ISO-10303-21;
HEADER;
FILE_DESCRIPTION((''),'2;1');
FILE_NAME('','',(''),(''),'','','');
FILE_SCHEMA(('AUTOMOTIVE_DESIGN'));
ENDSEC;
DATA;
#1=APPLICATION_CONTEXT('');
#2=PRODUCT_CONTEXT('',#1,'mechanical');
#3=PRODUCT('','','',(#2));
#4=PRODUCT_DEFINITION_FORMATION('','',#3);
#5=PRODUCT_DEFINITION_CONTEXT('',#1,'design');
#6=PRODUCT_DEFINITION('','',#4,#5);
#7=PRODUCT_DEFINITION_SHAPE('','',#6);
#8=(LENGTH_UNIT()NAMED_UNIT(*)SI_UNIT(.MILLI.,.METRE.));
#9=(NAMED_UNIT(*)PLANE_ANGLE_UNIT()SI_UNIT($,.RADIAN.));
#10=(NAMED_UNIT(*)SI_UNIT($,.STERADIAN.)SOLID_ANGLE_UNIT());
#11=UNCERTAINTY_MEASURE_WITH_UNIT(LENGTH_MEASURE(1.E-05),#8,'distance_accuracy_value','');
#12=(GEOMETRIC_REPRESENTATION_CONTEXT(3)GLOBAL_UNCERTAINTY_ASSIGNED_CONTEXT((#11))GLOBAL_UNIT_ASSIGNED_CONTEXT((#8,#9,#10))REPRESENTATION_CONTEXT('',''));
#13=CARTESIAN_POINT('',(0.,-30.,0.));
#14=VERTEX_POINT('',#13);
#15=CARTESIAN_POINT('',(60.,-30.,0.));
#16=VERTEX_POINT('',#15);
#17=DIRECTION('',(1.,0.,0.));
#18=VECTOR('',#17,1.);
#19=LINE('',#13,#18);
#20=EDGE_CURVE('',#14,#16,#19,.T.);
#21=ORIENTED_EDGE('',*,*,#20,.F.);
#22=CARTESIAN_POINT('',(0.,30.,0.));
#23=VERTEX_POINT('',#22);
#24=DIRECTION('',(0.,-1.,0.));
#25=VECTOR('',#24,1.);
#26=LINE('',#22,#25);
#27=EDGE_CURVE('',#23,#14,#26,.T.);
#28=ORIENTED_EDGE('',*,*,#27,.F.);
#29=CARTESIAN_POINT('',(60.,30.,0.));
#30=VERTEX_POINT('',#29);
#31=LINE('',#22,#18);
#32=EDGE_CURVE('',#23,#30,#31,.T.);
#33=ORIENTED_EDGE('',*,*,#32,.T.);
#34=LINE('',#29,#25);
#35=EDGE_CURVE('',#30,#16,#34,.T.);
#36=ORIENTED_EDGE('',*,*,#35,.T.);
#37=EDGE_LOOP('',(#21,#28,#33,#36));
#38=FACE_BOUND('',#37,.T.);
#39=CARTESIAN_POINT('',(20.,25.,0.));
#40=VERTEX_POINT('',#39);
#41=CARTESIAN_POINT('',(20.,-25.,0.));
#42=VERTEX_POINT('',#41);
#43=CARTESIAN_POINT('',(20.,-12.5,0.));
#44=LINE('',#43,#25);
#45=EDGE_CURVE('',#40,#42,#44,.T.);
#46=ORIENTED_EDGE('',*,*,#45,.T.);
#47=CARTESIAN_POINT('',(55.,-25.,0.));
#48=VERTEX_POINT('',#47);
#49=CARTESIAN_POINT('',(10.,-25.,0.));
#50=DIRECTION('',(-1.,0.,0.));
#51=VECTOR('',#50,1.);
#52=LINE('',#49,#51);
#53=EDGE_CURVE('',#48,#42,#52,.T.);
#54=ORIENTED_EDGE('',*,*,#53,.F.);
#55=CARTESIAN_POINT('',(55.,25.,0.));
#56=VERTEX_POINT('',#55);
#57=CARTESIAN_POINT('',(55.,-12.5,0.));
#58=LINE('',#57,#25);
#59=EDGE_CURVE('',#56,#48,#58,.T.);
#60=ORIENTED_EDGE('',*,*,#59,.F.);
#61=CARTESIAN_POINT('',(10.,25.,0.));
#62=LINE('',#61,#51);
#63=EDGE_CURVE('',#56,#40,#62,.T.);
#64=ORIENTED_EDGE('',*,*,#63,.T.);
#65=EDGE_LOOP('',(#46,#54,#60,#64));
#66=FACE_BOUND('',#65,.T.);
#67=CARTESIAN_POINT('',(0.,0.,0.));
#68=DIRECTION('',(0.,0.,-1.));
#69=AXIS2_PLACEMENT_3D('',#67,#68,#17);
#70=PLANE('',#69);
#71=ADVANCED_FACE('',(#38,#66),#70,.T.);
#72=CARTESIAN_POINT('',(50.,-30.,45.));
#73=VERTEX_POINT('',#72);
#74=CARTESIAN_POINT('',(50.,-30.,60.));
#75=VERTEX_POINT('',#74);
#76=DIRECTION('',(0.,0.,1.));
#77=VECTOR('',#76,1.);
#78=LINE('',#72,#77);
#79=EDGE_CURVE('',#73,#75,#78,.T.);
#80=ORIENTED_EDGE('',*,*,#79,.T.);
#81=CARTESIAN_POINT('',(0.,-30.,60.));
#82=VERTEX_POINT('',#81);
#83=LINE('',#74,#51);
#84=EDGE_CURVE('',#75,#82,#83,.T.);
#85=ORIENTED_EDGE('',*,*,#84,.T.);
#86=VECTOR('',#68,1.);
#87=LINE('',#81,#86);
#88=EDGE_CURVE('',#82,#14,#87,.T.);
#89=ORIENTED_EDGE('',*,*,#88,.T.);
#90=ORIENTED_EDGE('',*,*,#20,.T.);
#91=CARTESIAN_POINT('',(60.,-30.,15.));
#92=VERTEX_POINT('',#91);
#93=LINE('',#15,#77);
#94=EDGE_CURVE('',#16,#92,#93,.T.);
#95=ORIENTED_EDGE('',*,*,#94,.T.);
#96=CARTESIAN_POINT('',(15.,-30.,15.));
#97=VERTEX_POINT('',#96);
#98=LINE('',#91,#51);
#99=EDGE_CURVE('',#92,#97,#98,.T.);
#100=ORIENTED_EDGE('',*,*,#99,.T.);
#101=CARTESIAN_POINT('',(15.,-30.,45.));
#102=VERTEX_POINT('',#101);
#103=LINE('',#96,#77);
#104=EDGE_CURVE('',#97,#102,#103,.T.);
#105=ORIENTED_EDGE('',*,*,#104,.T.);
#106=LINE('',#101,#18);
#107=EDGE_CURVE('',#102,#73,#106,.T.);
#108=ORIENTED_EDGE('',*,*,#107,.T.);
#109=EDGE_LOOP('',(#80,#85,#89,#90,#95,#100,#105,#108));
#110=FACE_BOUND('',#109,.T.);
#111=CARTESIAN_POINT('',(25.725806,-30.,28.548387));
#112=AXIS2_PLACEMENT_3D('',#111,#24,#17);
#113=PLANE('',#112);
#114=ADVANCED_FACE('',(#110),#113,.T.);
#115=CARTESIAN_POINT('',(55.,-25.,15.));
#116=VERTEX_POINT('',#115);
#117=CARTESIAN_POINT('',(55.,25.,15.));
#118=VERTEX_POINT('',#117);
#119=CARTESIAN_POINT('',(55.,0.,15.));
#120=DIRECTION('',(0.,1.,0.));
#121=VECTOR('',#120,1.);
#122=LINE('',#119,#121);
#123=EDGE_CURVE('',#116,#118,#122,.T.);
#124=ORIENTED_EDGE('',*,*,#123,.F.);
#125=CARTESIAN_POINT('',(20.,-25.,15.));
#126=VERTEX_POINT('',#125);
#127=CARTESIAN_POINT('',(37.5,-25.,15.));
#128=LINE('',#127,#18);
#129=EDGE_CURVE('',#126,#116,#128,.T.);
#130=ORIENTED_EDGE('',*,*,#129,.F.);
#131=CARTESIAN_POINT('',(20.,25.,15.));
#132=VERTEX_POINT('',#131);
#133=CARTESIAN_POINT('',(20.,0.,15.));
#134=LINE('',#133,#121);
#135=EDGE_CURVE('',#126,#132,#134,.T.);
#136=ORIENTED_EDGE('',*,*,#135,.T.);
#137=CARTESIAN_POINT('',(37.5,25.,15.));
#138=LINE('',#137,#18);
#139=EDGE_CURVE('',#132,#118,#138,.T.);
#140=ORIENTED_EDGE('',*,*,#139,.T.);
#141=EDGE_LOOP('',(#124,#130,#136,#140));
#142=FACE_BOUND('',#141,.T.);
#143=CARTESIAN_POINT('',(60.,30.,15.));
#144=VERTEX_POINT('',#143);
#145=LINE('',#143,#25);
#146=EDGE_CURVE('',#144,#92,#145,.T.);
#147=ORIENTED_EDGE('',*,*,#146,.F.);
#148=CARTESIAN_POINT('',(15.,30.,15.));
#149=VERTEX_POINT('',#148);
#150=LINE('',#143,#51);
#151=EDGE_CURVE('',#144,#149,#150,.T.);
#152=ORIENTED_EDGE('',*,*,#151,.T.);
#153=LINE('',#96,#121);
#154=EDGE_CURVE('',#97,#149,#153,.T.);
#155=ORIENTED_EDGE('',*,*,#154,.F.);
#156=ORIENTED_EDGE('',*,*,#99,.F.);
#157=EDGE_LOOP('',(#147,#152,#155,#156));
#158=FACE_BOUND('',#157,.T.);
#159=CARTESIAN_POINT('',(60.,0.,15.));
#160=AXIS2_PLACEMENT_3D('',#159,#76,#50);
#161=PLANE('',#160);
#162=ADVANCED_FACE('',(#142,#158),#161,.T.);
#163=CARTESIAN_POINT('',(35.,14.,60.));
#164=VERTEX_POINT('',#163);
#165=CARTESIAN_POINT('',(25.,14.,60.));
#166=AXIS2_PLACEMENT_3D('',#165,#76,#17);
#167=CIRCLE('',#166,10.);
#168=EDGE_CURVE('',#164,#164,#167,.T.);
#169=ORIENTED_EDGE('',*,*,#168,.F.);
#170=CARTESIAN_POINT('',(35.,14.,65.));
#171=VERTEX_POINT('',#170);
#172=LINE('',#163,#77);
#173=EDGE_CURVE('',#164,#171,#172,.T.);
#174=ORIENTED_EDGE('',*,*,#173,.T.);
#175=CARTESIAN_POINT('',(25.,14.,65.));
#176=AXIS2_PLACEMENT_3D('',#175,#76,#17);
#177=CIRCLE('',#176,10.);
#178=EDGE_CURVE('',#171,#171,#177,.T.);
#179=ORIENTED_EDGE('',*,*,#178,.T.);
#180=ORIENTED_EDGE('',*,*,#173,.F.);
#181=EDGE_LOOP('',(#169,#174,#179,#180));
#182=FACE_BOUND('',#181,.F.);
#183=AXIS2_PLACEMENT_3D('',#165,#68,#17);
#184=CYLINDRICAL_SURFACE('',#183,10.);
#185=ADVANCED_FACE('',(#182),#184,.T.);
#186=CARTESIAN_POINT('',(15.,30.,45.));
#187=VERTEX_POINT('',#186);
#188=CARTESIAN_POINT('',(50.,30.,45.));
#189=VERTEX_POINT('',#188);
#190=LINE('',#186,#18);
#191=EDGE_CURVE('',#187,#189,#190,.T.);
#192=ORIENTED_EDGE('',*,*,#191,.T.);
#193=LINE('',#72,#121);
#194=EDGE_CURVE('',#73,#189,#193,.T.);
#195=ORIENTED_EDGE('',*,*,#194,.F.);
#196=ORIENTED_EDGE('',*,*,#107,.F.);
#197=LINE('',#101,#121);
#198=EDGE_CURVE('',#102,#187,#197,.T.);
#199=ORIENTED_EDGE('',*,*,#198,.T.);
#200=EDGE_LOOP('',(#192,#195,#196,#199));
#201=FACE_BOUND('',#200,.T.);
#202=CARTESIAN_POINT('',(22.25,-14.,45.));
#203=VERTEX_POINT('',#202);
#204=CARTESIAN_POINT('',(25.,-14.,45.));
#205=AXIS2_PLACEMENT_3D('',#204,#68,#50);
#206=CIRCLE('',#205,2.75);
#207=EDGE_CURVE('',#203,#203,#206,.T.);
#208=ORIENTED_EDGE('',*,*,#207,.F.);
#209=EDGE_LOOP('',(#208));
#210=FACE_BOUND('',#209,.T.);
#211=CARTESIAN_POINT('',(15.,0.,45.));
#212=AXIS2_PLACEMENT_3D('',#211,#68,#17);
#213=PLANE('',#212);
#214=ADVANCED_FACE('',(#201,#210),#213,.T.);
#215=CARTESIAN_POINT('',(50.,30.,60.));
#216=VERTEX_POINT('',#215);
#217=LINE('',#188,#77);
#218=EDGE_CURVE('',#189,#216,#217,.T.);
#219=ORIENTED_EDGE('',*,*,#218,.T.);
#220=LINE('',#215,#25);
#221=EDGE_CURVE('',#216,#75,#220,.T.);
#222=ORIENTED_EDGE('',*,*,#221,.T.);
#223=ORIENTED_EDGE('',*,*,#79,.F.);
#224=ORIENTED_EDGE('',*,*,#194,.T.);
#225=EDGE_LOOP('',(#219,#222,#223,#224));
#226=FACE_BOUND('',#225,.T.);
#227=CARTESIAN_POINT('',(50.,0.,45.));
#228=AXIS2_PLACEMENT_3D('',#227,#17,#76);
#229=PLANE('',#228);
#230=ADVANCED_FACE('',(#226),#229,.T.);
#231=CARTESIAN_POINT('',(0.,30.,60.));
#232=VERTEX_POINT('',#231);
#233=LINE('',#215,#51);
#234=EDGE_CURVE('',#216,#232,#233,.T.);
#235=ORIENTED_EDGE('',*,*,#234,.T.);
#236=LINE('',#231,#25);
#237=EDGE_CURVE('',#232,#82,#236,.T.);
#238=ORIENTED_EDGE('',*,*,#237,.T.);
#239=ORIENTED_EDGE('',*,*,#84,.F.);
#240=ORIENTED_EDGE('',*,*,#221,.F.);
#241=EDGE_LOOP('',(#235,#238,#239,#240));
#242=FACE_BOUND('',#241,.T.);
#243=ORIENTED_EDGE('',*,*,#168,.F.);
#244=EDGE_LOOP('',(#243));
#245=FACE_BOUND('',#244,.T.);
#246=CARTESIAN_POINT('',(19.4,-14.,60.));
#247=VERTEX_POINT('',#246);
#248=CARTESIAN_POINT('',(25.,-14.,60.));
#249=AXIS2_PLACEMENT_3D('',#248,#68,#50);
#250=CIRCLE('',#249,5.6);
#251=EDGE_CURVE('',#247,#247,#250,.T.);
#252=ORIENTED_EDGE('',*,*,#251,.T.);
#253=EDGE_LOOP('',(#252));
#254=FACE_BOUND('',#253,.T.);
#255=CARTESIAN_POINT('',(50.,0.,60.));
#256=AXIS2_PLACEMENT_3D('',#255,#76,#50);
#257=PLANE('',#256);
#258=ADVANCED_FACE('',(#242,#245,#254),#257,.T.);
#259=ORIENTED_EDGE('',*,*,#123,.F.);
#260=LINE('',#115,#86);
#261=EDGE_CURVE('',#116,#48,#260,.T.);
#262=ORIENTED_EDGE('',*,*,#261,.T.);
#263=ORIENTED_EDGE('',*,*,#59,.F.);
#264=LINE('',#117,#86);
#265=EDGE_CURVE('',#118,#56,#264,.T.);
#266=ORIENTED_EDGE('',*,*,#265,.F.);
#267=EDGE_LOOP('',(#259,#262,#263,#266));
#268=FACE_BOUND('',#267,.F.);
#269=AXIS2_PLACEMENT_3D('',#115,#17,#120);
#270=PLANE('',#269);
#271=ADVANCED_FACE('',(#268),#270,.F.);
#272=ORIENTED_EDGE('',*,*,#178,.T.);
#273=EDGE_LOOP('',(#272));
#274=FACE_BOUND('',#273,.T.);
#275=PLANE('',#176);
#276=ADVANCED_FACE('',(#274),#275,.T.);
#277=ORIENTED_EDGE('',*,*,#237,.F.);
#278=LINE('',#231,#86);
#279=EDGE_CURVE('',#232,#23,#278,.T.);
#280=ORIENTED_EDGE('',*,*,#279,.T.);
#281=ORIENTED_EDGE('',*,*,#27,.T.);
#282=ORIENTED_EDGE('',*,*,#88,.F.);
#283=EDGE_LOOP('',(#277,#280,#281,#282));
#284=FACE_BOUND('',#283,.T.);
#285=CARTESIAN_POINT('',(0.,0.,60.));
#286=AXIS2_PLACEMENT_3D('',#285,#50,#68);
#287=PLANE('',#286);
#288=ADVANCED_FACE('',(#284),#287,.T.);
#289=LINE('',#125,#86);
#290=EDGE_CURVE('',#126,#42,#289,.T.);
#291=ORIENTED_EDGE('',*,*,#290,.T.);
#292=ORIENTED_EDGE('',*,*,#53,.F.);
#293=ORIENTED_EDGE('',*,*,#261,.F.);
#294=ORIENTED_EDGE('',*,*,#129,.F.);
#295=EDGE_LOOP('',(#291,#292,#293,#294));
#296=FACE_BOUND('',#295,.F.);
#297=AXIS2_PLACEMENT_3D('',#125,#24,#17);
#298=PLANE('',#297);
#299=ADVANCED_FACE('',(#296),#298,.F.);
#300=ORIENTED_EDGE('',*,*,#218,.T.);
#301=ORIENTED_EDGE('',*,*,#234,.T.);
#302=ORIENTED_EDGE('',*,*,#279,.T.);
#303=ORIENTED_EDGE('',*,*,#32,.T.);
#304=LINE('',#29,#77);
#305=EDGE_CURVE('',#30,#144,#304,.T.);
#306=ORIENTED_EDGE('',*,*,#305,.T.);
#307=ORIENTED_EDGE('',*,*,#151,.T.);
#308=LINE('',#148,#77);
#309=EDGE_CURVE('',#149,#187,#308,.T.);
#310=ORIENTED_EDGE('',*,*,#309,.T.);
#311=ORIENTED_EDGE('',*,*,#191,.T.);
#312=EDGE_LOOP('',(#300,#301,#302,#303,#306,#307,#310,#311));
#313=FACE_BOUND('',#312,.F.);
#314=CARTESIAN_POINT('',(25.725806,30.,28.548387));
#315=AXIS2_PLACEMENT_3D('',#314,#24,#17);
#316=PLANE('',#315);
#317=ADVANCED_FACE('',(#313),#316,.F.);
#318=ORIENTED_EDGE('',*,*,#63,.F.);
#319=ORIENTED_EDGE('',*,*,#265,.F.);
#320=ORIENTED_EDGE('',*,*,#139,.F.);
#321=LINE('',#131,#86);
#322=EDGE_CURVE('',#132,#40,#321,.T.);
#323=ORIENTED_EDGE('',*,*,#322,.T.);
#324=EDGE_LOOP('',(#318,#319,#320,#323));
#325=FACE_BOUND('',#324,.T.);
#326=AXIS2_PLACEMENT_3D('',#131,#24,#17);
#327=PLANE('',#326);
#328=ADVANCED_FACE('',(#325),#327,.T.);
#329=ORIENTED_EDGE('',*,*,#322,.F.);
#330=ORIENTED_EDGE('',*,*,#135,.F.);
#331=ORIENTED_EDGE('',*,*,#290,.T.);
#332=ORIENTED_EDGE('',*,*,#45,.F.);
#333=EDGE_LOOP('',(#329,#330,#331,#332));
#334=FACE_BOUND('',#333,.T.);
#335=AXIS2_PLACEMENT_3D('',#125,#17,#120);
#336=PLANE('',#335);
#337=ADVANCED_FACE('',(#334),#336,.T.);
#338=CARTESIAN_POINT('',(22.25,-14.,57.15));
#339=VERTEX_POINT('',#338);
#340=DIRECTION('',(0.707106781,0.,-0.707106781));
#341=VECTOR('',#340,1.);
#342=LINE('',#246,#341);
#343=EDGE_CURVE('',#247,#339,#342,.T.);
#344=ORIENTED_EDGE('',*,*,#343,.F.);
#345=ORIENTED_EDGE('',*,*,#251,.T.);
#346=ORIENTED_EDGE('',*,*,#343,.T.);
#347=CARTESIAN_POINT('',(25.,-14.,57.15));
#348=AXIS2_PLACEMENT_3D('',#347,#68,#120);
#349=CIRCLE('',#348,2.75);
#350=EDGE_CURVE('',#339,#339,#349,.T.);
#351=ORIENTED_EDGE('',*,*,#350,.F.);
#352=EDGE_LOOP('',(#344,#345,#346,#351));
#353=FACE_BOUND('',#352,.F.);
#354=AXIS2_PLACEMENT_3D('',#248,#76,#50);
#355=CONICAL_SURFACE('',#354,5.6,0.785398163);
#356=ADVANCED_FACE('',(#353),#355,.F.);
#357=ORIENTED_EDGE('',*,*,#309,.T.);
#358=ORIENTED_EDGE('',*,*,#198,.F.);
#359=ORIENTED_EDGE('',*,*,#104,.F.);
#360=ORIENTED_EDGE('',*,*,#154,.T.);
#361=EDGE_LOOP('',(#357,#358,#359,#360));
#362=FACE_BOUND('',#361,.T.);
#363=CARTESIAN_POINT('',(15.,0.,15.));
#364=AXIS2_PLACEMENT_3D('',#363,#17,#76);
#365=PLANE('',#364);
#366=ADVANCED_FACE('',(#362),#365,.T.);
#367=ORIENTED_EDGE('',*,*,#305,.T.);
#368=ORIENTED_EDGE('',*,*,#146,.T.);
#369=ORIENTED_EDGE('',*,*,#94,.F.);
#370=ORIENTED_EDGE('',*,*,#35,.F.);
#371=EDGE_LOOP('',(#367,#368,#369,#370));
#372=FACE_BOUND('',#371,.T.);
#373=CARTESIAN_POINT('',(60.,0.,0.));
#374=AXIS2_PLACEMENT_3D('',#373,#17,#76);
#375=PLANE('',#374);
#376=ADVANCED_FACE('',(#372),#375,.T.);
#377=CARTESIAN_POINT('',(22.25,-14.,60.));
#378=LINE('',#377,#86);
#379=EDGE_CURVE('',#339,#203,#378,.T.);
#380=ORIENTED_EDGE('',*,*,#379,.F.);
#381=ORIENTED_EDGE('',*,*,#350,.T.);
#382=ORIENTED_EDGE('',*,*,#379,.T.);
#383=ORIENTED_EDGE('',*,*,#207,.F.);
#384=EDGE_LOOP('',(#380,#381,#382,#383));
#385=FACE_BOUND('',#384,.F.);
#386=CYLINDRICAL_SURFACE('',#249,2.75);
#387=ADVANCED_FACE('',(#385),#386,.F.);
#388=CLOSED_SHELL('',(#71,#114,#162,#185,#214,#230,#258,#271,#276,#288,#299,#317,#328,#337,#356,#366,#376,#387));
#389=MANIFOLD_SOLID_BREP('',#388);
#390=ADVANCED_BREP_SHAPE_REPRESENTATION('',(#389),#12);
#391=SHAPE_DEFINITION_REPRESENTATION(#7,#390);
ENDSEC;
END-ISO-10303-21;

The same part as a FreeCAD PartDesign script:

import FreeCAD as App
import Part
import Sketcher
from FreeCAD import Vector


def add_polygon(sketch, points):
    """Adds a closed chain of lines whose ends are joined by coincident constraints."""
    first, n = sketch.GeometryCount, len(points)
    for a, b in zip(points, points[1:] + points[:1]):
        sketch.addGeometry(Part.LineSegment(App.Vector(*a, 0), App.Vector(*b, 0)), False)
    for i in range(n):
        sketch.addConstraint(Sketcher.Constraint("Coincident", first + i, 2, first + (i + 1) % n, 1))

doc = App.newDocument("Part")
body = doc.addObject("PartDesign::Body", "Body")

# Sketch on XZ plane
sketch1 = doc.addObject("Sketcher::SketchObject", "Sketch")
body.addObject(sketch1)
sketch1.AttachmentSupport = (doc.XZ_Plane, [""])
sketch1.MapMode = "FlatFace"
add_polygon(sketch1, [(50, 45), (50, 60), (0, 60), (0, 0), (60, 0), (60, 15), (15, 15), (15, 45)])  # lines 0-7
sketch1.addConstraint(Sketcher.Constraint("Vertical", 0))
sketch1.addConstraint(Sketcher.Constraint("Horizontal", 1))
sketch1.addConstraint(Sketcher.Constraint("Vertical", 2))
sketch1.addConstraint(Sketcher.Constraint("Horizontal", 3))
sketch1.addConstraint(Sketcher.Constraint("Vertical", 4))
sketch1.addConstraint(Sketcher.Constraint("Horizontal", 5))
sketch1.addConstraint(Sketcher.Constraint("Vertical", 6))
sketch1.addConstraint(Sketcher.Constraint("Horizontal", 7))
sketch1.addConstraint(Sketcher.Constraint("Coincident", 2, 2, -1, 1))
sketch1.addConstraint(Sketcher.Constraint("Equal", 3, 2))
sketch1.addConstraint(Sketcher.Constraint("Equal", 0, 4))
sketch1.addConstraint(Sketcher.Constraint("DistanceX", 1, 2, 1, 1, 50.0))
sketch1.addConstraint(Sketcher.Constraint("DistanceX", 3, 1, 3, 2, 60.0))
sketch1.addConstraint(Sketcher.Constraint("DistanceX", 5, 2, 5, 1, 45.0))
sketch1.addConstraint(Sketcher.Constraint("DistanceY", 0, 1, 0, 2, 15.0))
pad1 = doc.addObject("PartDesign::Pad", "Pad")
body.addObject(pad1)
pad1.Profile = sketch1
pad1.Length = 60
pad1.Midplane = True

# Sketch on XY plane
sketch2 = doc.addObject("Sketcher::SketchObject", "Sketch001")
body.addObject(sketch2)
sketch2.AttachmentSupport = (doc.XY_Plane, [""])
sketch2.MapMode = "FlatFace"
sketch2.AttachmentOffset = App.Placement(Vector(0, 0, 15), App.Rotation())
add_polygon(sketch2, [(20, 25), (20, -25), (55, -25), (55, 25)])  # lines 0-3
sketch2.addConstraint(Sketcher.Constraint("Vertical", 0))
sketch2.addConstraint(Sketcher.Constraint("Horizontal", 1))
sketch2.addConstraint(Sketcher.Constraint("Vertical", 2))
sketch2.addConstraint(Sketcher.Constraint("Horizontal", 3))
sketch2.addConstraint(Sketcher.Constraint("DistanceX", 1, 1, 1, 2, 35.0))
sketch2.addConstraint(Sketcher.Constraint("DistanceY", 0, 2, 0, 1, 50.0))
sketch2.addConstraint(Sketcher.Constraint("DistanceX", -1, 1, 0, 2, 20.0))
sketch2.addConstraint(Sketcher.Constraint("DistanceY", 0, 2, -1, 1, 25.0))
pocket1 = doc.addObject("PartDesign::Pocket", "Pocket")
body.addObject(pocket1)
pocket1.Profile = sketch2
pocket1.Type = "ThroughAll"

# Sketch on XY plane
sketch3 = doc.addObject("Sketcher::SketchObject", "Sketch002")
body.addObject(sketch3)
sketch3.AttachmentSupport = (doc.XY_Plane, [""])
sketch3.MapMode = "FlatFace"
sketch3.AttachmentOffset = App.Placement(Vector(0, 0, 60), App.Rotation())
sketch3.addGeometry(Part.Circle(Vector(25, -14, 0), Vector(0, 0, 1), 2.75), False)
sketch3.addConstraint(Sketcher.Constraint("Diameter", 0, 5.5))
sketch3.addConstraint(Sketcher.Constraint("DistanceX", -1, 1, 0, 3, 25.0))
sketch3.addConstraint(Sketcher.Constraint("DistanceY", 0, 3, -1, 1, 14.0))
doc.recompute()
hole = doc.addObject("PartDesign::Hole", "Hole")
body.addObject(hole)
hole.Profile = sketch3
hole.ThreadType = "None"
hole.Diameter = 5.5
hole.DepthType = "ThroughAll"
hole.HoleCutType = "Countersink"
hole.HoleCutDiameter = 11.2
hole.HoleCutCountersinkAngle = 90

# Sketch on XY plane
sketch4 = doc.addObject("Sketcher::SketchObject", "Sketch003")
body.addObject(sketch4)
sketch4.AttachmentSupport = (doc.XY_Plane, [""])
sketch4.MapMode = "FlatFace"
sketch4.AttachmentOffset = App.Placement(Vector(0, 0, 60), App.Rotation())
sketch4.addGeometry(Part.Circle(Vector(25, 14, 0), Vector(0, 0, 1), 10), False)
sketch4.addConstraint(Sketcher.Constraint("Diameter", 0, 20.0))
sketch4.addConstraint(Sketcher.Constraint("DistanceX", -1, 1, 0, 3, 25.0))
sketch4.addConstraint(Sketcher.Constraint("DistanceY", -1, 1, 0, 3, 14.0))
pad2 = doc.addObject("PartDesign::Pad", "Pad001")
body.addObject(pad2)
pad2.Profile = sketch4
pad2.Length = 5

# Sketch on XY plane
sketch5 = doc.addObject("Sketcher::SketchObject", "Sketch004")
body.addObject(sketch5)
sketch5.AttachmentSupport = (doc.XY_Plane, [""])
sketch5.MapMode = "FlatFace"
sketch5.AttachmentOffset = App.Placement(Vector(0, 0, 65), App.Rotation())
sketch5.addGeometry(Part.Circle(Vector(25, 14, 0), Vector(0, 0, 1), 8.322413), False)
sketch5.addConstraint(Sketcher.Constraint("DistanceX", -1, 1, 0, 3, 25.0))
sketch5.addConstraint(Sketcher.Constraint("DistanceY", -1, 1, 0, 3, 14.0))
sketch5.addConstraint(Sketcher.Constraint("Diameter", 0, 16.644826))
pad3 = doc.addObject("PartDesign::Pad", "Pad002")
body.addObject(pad3)
pad3.Profile = sketch5
pad3.Length = 5
pad3.Reversed = True

doc.recompute()
